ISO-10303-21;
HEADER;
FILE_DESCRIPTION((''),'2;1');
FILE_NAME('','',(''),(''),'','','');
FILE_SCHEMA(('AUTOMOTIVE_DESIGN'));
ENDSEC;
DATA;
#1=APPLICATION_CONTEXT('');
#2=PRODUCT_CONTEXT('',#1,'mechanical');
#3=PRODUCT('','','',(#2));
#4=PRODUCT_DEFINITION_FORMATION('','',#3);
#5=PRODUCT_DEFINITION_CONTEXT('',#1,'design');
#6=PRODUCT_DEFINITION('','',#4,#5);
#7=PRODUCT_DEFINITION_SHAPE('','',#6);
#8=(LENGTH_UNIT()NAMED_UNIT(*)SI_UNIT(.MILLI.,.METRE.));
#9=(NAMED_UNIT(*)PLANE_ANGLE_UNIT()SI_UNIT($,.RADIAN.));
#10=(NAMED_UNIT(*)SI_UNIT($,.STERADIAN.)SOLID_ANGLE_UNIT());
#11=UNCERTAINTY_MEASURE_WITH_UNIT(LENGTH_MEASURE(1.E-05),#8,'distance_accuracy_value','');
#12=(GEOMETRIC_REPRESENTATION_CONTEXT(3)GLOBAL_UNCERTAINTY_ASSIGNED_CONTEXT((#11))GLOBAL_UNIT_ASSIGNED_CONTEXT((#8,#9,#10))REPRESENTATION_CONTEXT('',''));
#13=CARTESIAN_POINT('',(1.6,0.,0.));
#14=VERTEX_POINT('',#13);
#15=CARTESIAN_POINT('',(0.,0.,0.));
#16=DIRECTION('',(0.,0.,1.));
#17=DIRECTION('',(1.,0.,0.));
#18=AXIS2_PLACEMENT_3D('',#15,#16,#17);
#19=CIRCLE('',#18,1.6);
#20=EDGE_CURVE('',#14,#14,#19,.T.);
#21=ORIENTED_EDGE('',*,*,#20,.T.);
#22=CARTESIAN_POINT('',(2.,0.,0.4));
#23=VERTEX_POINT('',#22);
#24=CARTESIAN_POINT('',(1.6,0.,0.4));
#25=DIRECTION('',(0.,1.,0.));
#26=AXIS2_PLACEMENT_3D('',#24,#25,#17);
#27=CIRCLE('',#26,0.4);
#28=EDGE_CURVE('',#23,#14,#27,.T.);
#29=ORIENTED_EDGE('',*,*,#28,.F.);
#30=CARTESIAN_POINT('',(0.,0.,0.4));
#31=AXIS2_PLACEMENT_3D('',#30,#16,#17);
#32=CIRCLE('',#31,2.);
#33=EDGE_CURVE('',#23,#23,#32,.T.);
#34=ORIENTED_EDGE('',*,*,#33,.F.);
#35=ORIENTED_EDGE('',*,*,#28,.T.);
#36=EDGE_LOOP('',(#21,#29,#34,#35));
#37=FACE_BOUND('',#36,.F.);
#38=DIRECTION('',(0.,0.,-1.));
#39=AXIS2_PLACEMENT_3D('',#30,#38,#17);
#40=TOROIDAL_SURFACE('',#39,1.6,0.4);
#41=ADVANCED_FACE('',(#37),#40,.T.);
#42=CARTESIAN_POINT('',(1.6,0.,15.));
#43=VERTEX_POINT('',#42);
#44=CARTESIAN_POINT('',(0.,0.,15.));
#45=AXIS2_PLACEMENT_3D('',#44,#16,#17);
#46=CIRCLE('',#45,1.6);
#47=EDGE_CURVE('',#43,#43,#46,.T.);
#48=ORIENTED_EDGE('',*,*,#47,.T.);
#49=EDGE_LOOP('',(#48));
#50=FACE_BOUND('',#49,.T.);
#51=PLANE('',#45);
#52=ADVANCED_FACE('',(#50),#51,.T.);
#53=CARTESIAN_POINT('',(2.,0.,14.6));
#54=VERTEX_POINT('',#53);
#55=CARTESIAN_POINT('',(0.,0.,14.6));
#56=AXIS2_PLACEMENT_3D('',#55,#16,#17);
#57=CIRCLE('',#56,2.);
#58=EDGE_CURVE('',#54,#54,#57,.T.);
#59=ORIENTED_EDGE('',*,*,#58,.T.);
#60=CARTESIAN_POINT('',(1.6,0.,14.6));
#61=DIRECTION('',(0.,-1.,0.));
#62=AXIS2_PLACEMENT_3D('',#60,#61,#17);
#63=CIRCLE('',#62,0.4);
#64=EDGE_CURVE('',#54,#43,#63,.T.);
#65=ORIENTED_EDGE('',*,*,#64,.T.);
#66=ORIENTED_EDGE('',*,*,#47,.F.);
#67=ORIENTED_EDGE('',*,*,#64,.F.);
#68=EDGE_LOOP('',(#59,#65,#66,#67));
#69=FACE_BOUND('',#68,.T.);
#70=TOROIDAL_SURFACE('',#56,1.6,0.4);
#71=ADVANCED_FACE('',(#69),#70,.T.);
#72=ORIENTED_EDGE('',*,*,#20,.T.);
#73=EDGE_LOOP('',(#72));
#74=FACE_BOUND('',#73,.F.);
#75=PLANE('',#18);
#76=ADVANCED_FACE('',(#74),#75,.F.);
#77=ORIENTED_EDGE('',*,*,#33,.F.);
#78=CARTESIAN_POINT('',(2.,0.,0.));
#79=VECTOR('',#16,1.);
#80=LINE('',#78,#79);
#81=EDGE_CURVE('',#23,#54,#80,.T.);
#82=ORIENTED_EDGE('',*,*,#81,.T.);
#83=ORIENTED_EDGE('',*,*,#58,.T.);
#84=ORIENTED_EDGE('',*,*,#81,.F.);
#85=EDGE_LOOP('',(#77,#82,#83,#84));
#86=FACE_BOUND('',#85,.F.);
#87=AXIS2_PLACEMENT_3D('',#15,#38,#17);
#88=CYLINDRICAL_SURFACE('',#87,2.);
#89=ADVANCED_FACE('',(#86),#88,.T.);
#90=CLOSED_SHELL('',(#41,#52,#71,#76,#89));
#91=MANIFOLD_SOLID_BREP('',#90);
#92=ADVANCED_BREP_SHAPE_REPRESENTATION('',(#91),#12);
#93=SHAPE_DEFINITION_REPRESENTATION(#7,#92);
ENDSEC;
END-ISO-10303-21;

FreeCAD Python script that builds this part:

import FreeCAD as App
import Part
import Sketcher
Q = App.Units.Quantity


def edges_at(feature, points):
    """Names of the edges that pass closest to the given points."""
    edges = feature.Shape.Edges
    near = lambda p: min(range(len(edges)), key=lambda i: edges[i].distToShape(Part.Vertex(*p))[0])
    return sorted({f"Edge{near(p) + 1}" for p in points})

doc = App.newDocument("Part")
body = doc.addObject("PartDesign::Body", "Body")

sketch1 = body.newObject("Sketcher::SketchObject", "Sketch")
sketch1.AttachmentSupport = (doc.getObject("XY_Plane"), [""])
sketch1.MapMode = "FlatFace"
sketch1.addGeometry(Part.Circle(App.Vector(0, 0, 0), App.Vector(0, 0, 1), 2), False)
sketch1.addConstraint(Sketcher.Constraint("Coincident", 0, 3, -1, 1))
sketch1.addConstraint(Sketcher.Constraint("Diameter", 0, Q("4 mm")))
pad1 = body.newObject("PartDesign::Pad", "Pad")
pad1.Profile = sketch1
pad1.Length = 15
doc.recompute()

fillet = body.newObject("PartDesign::Fillet", "Fillet")
fillet.Base = (pad1, edges_at(pad1, [(-2, 0, 15), (-2, 0, 0)]))
fillet.Radius = 0.4

doc.recompute()
